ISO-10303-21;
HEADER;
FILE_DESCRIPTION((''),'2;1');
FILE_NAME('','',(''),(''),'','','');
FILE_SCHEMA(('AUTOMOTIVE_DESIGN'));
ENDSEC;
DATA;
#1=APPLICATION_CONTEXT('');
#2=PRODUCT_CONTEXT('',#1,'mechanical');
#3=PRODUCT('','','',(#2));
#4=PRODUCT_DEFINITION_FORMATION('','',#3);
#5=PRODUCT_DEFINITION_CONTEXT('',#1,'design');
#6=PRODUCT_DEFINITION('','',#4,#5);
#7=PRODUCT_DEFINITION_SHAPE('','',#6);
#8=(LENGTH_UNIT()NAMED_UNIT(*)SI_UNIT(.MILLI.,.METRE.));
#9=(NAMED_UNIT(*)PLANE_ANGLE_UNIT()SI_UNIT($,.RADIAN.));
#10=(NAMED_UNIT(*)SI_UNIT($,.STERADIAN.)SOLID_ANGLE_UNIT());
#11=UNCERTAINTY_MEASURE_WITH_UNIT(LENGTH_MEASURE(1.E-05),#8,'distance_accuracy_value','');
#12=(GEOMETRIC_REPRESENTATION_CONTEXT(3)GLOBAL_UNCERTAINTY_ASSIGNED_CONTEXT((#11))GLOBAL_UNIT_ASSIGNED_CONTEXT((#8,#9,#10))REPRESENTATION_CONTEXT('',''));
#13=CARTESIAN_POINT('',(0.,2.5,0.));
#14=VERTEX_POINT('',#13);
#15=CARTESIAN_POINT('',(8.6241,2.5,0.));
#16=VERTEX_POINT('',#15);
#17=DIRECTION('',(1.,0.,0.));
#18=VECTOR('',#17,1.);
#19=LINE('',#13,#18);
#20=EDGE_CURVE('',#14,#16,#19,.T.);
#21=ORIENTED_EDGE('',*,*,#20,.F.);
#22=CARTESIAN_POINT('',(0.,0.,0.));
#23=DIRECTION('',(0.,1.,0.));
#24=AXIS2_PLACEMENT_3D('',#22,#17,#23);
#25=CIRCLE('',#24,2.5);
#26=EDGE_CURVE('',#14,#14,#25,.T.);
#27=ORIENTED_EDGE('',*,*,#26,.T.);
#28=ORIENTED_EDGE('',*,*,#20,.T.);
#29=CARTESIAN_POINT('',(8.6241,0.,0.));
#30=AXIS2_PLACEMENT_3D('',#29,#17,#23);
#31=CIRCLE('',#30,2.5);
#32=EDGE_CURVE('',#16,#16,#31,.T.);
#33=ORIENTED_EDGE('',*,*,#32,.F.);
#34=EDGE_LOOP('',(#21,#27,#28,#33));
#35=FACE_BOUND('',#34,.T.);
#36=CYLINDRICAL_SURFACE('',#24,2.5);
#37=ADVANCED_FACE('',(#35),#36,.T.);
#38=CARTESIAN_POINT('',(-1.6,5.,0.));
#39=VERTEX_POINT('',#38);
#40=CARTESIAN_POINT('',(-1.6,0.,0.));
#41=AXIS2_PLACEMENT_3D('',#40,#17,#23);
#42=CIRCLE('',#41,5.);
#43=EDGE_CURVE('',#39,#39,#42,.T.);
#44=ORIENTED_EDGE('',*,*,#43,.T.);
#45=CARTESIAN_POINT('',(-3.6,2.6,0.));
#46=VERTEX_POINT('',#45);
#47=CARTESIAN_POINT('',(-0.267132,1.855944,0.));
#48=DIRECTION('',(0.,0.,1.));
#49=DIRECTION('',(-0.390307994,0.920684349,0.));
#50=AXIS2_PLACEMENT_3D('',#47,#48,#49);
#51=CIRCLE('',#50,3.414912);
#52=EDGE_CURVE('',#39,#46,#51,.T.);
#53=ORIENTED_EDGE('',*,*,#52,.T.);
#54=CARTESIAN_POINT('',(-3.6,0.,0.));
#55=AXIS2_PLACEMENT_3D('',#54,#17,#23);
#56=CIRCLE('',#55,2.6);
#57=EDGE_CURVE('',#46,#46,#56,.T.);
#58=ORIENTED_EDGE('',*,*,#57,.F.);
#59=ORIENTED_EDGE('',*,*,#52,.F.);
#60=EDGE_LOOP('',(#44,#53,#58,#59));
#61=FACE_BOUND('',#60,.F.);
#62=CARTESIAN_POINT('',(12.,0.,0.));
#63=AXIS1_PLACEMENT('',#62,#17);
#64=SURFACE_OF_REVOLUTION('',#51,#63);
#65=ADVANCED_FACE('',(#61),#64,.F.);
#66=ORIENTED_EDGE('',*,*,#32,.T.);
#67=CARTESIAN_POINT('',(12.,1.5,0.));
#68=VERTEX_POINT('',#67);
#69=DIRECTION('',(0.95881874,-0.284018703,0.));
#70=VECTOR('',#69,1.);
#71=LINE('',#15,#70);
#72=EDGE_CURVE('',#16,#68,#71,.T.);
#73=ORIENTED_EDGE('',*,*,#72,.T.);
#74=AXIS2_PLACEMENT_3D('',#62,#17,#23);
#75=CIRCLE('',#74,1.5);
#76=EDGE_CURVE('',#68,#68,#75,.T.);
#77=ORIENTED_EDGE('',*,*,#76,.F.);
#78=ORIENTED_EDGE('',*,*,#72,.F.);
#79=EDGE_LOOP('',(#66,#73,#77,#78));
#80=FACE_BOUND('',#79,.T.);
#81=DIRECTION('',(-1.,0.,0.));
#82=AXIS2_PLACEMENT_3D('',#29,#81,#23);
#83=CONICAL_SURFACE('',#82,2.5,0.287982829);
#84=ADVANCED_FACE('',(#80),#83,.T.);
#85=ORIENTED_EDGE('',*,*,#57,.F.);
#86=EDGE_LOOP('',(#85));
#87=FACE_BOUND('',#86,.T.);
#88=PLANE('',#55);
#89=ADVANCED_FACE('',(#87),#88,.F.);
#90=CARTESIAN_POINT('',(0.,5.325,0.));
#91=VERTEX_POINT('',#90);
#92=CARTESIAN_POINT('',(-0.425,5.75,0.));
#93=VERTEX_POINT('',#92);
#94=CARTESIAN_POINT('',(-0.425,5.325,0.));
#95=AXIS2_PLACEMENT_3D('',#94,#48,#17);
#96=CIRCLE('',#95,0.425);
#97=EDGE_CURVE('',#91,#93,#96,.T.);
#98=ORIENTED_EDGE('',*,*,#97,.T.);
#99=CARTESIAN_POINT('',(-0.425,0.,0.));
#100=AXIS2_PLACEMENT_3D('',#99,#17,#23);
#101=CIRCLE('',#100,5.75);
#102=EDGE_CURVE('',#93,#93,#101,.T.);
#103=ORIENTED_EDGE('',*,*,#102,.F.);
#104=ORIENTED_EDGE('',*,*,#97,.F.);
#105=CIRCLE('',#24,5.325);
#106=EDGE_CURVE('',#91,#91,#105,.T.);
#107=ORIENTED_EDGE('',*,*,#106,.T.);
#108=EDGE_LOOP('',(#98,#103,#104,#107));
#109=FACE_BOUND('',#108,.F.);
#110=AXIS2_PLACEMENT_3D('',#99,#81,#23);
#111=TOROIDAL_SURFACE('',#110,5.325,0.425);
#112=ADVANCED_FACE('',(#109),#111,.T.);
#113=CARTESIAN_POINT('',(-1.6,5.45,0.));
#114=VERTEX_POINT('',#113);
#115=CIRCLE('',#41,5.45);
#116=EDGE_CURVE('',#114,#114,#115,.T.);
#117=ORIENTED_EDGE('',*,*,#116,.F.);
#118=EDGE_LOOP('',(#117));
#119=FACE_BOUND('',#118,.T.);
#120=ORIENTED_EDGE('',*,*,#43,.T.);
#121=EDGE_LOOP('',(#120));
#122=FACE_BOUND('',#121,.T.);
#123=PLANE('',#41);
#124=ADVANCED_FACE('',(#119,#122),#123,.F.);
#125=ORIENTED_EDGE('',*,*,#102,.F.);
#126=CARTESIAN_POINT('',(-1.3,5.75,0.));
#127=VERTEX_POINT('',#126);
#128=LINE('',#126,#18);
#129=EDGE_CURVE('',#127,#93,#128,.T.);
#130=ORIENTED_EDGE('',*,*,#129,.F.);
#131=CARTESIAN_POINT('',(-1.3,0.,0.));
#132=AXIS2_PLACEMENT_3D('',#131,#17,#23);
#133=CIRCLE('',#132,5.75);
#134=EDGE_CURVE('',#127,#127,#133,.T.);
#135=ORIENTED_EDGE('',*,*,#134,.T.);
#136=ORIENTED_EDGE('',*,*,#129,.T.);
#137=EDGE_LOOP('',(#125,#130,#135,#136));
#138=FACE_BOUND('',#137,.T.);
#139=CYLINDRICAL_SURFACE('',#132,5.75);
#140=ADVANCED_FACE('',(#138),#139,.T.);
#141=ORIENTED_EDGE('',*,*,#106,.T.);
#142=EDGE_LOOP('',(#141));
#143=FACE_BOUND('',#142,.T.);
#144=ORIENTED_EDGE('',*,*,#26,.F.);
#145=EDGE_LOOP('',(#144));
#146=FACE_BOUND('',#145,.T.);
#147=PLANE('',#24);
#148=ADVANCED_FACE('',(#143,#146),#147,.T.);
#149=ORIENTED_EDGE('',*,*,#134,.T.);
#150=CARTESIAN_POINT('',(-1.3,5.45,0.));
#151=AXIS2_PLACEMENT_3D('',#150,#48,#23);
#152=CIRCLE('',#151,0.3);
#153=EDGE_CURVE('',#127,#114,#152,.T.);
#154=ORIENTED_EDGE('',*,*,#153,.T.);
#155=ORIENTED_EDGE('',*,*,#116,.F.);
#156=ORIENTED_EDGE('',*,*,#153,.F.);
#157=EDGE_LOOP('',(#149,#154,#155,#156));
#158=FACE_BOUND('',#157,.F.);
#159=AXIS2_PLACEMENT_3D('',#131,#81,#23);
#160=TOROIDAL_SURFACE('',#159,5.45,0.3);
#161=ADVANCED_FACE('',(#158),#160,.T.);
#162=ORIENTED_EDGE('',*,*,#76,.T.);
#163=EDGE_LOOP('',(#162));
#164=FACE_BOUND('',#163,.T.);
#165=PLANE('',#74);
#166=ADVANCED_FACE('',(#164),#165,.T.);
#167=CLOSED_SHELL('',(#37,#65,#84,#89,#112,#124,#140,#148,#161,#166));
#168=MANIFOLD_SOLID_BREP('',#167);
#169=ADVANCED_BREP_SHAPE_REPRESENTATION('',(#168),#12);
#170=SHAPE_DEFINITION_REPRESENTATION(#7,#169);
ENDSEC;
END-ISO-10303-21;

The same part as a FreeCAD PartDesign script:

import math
import FreeCAD as App
import Part
import Sketcher
Q = App.Units.Quantity

doc = App.newDocument("Part")
body = doc.addObject("PartDesign::Body", "Body")

sketch1 = body.newObject("Sketcher::SketchObject", "Sketch")
sketch1.AttachmentSupport = (doc.getObject("XY_Plane"), [""])
sketch1.MapMode = "FlatFace"
sketch1.addGeometry([
    Part.LineSegment(App.Vector(-3.6, 0, 0), App.Vector(12, 0, 0)),
    Part.LineSegment(App.Vector(12, 0, 0), App.Vector(12, 1.5, 0)),
    Part.LineSegment(App.Vector(12, 1.5, 0), App.Vector(8.6241, 2.5, 0)),
    Part.LineSegment(App.Vector(8.6241, 2.5, 0), App.Vector(0, 2.5, 0)),
    Part.LineSegment(App.Vector(0, 2.5, 0), App.Vector(0, 5.325, 0)),
    Part.ArcOfCircle(Part.Circle(App.Vector(-0.425, 5.325, 0), App.Vector(0, 0, 1), 0.425), math.radians(0), math.radians(90)),
    Part.LineSegment(App.Vector(-0.425, 5.75, 0), App.Vector(-1.3, 5.75, 0)),
    Part.ArcOfCircle(Part.Circle(App.Vector(-1.3, 5.45, 0), App.Vector(0, 0, 1), 0.3), math.radians(90), math.radians(180)),
    Part.LineSegment(App.Vector(-1.6, 5.45, 0), App.Vector(-1.6, 5, 0)),
    Part.ArcOfCircle(Part.Circle(App.Vector(-0.2671, 1.8559, 0), App.Vector(0, 0, 1), 3.414965), math.radians(112.97388), math.radians(167.414596)),
    Part.LineSegment(App.Vector(-3.6, 2.6, 0), App.Vector(-3.6, 0, 0)),
], False)
sketch1.addConstraint([
    Sketcher.Constraint("Coincident", 0, 2, 1, 1),
    Sketcher.Constraint("Coincident", 1, 2, 2, 1),
    Sketcher.Constraint("Coincident", 2, 2, 3, 1),
    Sketcher.Constraint("Coincident", 3, 2, 4, 1),
    Sketcher.Constraint("Tangent", 4, 2, 5, 1),
    Sketcher.Constraint("Tangent", 5, 2, 6, 1),
    Sketcher.Constraint("Tangent", 6, 2, 7, 1),
    Sketcher.Constraint("Tangent", 7, 2, 8, 1),
    Sketcher.Constraint("Coincident", 8, 2, 9, 1),
    Sketcher.Constraint("Coincident", 9, 2, 10, 1),
    Sketcher.Constraint("Coincident", 10, 2, 0, 1),
    Sketcher.Constraint("Horizontal", 0),
    Sketcher.Constraint("Vertical", 1),
    Sketcher.Constraint("Horizontal", 3),
    Sketcher.Constraint("Vertical", 4),
    Sketcher.Constraint("Horizontal", 6),
    Sketcher.Constraint("Vertical", 8),
    Sketcher.Constraint("Vertical", 10),
    Sketcher.Constraint("PointOnObject", 0, 2, -1),
    Sketcher.Constraint("PointOnObject", 3, 2, -2),
    Sketcher.Constraint("Radius", 7, 0.3),
    Sketcher.Constraint("DistanceX", 0, 1, 0, 2, 15.6),
    Sketcher.Constraint("DistanceY", 1, 1, 1, 2, 1.5),
    Sketcher.Constraint("DistanceY", 10, 2, 10, 1, 2.6),
    Sketcher.Constraint("DistanceX", -1, 1, 0, 2, 12.0),
    Sketcher.Constraint("DistanceY", -1, 1, 8, 2, 5.0),
    Sketcher.Constraint("Angle", 2, Q("163.4998 deg")),
    Sketcher.Constraint("Radius", 5, 0.425),
    Sketcher.Constraint("Radius", 9, 3.415),
    Sketcher.Constraint("DistanceY", 1, 2, 2, 2, 1.0),
    Sketcher.Constraint("DistanceX", 9, 2, 8, 2, 2.0),
    Sketcher.Constraint("DistanceY", 8, 2, 8, 1, 0.45),
])
revolution = body.newObject("PartDesign::Revolution", "Revolution")
revolution.Profile = sketch1
revolution.ReferenceAxis = (sketch1, ["H_Axis"])
revolution.Angle = 360

doc.recompute()
